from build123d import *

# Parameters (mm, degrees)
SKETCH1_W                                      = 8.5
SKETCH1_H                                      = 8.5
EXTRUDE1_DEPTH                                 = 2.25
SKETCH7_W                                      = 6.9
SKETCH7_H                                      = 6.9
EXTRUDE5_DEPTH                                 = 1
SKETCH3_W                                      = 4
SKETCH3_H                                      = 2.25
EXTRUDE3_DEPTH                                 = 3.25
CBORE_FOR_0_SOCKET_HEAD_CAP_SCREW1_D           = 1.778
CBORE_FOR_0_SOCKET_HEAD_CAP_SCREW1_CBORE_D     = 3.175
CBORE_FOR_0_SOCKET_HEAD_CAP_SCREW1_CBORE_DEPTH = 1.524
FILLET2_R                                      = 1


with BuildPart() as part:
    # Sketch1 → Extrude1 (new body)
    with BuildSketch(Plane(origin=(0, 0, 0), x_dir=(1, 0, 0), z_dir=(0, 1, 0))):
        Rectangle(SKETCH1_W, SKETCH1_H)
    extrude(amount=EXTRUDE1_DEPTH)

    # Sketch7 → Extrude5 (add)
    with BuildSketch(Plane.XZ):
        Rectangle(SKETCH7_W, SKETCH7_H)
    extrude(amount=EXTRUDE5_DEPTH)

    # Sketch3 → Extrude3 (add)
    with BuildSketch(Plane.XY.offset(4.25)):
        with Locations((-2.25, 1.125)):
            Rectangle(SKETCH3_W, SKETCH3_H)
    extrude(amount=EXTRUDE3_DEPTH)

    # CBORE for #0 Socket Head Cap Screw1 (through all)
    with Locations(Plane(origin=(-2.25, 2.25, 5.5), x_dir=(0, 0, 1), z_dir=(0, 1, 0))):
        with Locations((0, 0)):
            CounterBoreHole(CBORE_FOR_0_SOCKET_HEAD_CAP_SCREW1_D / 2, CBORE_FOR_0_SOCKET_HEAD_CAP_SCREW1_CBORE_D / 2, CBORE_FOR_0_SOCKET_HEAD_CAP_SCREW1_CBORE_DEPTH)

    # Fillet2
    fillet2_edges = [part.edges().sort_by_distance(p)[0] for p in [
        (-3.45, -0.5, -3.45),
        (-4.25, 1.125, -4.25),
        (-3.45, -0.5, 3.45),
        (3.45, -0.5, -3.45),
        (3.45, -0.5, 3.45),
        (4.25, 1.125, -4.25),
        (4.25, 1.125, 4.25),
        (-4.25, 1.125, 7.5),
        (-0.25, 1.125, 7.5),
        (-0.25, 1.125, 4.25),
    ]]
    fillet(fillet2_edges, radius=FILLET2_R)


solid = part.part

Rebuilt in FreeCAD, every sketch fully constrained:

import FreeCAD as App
import Part
import Sketcher

V = App.Vector
Q = App.Units.Quantity


def edges_at(feature, points):
    """Names of the edges that pass closest to the given points."""
    edges = feature.Shape.Edges
    near = lambda p: min(range(len(edges)), key=lambda i: edges[i].distToShape(Part.Vertex(*p))[0])
    return sorted({f"Edge{near(p) + 1}" for p in points})

doc = App.newDocument("Part")
body = doc.addObject("PartDesign::Body", "Body")

sketch1 = body.newObject("Sketcher::SketchObject", "Sketch")
sketch1.AttachmentSupport = (doc.getObject("XZ_Plane"), [""])
sketch1.MapMode = "FlatFace"
sketch1.addGeometry([
    Part.LineSegment(V(-4, -4, 0), V(-4, 4, 0)),
    Part.LineSegment(V(-4, 4, 0), V(4, 4, 0)),
    Part.LineSegment(V(4, 4, 0), V(4, -4, 0)),
    Part.LineSegment(V(4, -4, 0), V(-4, -4, 0)),
], False)
sketch1.addConstraint([
    Sketcher.Constraint("Coincident", 0, 2, 1, 1),
    Sketcher.Constraint("Coincident", 1, 2, 2, 1),
    Sketcher.Constraint("Coincident", 2, 2, 3, 1),
    Sketcher.Constraint("Coincident", 3, 2, 0, 1),
    Sketcher.Constraint("Vertical", 0),
    Sketcher.Constraint("Horizontal", 1),
    Sketcher.Constraint("Vertical", 2),
    Sketcher.Constraint("Horizontal", 3),
    Sketcher.Constraint("Symmetric", 0, 2, 2, 2, -1, 1),
    Sketcher.Constraint("Equal", 3, 0),
    Sketcher.Constraint("DistanceX", 1, 1, 1, 2, Q("8.5 mm")),
])
pad1 = body.newObject("PartDesign::Pad", "Pad")
pad1.Profile = sketch1
pad1.Length = 2.25
pad1.Reversed = True

sketch2 = body.newObject("Sketcher::SketchObject", "Sketch001")
sketch2.AttachmentSupport = (doc.getObject("XZ_Plane"), [""])
sketch2.MapMode = "FlatFace"
sketch2.addGeometry([
    Part.LineSegment(V(-3, 3, 0), V(-3, -3, 0)),
    Part.LineSegment(V(-3, -3, 0), V(3, -3, 0)),
    Part.LineSegment(V(3, -3, 0), V(3, 3, 0)),
    Part.LineSegment(V(3, 3, 0), V(-3, 3, 0)),
], False)
sketch2.addConstraint([
    Sketcher.Constraint("Coincident", 0, 2, 1, 1),
    Sketcher.Constraint("Coincident", 1, 2, 2, 1),
    Sketcher.Constraint("Coincident", 2, 2, 3, 1),
    Sketcher.Constraint("Coincident", 3, 2, 0, 1),
    Sketcher.Constraint("Vertical", 0),
    Sketcher.Constraint("Horizontal", 1),
    Sketcher.Constraint("Vertical", 2),
    Sketcher.Constraint("Horizontal", 3),
    Sketcher.Constraint("Symmetric", 0, 2, 2, 2, -1, 1),
    Sketcher.Constraint("Equal", 3, 0),
    Sketcher.Constraint("DistanceX", 1, 1, 1, 2, Q("6.9 mm")),
])
pad2 = body.newObject("PartDesign::Pad", "Pad001")
pad2.Profile = sketch2
pad2.Length = 1

sketch3 = body.newObject("Sketcher::SketchObject", "Sketch002")
sketch3.AttachmentSupport = (doc.getObject("XY_Plane"), [""])
sketch3.MapMode = "FlatFace"
sketch3.AttachmentOffset = App.Placement(V(0, 0, 4.25), App.Rotation())
sketch3.addGeometry([
    Part.LineSegment(V(-4.2, 2.2, 0), V(-4.2, 0, 0)),
    Part.LineSegment(V(-4.2, 0, 0), V(-0.2, 0, 0)),
    Part.LineSegment(V(-0.2, 0, 0), V(-0.2, 2.2, 0)),
    Part.LineSegment(V(-0.2, 2.2, 0), V(-4.2, 2.2, 0)),
], False)
sketch3.addConstraint([
    Sketcher.Constraint("Coincident", 0, 2, 1, 1),
    Sketcher.Constraint("Coincident", 1, 2, 2, 1),
    Sketcher.Constraint("Coincident", 2, 2, 3, 1),
    Sketcher.Constraint("Coincident", 3, 2, 0, 1),
    Sketcher.Constraint("Vertical", 0),
    Sketcher.Constraint("Horizontal", 1),
    Sketcher.Constraint("Vertical", 2),
    Sketcher.Constraint("Horizontal", 3),
    Sketcher.Constraint("PointOnObject", 0, 2, -1),
    Sketcher.Constraint("DistanceX", 1, 1, 1, 2, Q("4 mm")),
    Sketcher.Constraint("DistanceY", 0, 2, 0, 1, Q("2.25 mm")),
    Sketcher.Constraint("DistanceX", 0, 2, -1, 1, Q("4.25 mm")),
])
pad3 = body.newObject("PartDesign::Pad", "Pad002")
pad3.Profile = sketch3
pad3.Length = 3.25

sketch4 = body.newObject("Sketcher::SketchObject", "Sketch003")
sketch4.AttachmentSupport = (doc.getObject("XZ_Plane"), [""])
sketch4.MapMode = "FlatFace"
sketch4.AttachmentOffset = App.Placement(V(0, 0, -2.25), App.Rotation())
sketch4.addGeometry(Part.Circle(V(-2.2, 5.5, 0), V(0, 0, 1), 0.9), False)
sketch4.addConstraint([
    Sketcher.Constraint("Diameter", 0, Q("1.778 mm")),
    Sketcher.Constraint("DistanceY", -1, 1, 0, 3, Q("5.5 mm")),
    Sketcher.Constraint("DistanceX", 0, 3, -1, 1, Q("2.25 mm")),
])
doc.recompute()
hole = body.newObject("PartDesign::Hole", "Hole")
hole.Profile = sketch4
hole.ThreadType = "None"
hole.Diameter = 1.778
hole.DepthType = "ThroughAll"
hole.HoleCutType = "Counterbore"
hole.HoleCutDiameter = 3.175
hole.HoleCutDepth = 1.524
hole.Reversed = True
doc.recompute()

fillet = body.newObject("PartDesign::Fillet", "Fillet")
fillet.Base = (hole, edges_at(hole, [
    (-3.45, -0.5, -3.45),
    (-4.25, 1.125, -4.25),
    (-3.45, -0.5, 3.45),
    (3.45, -0.5, -3.45),
    (3.45, -0.5, 3.45),
    (4.25, 1.125, -4.25),
    (4.25, 1.125, 4.25),
    (-4.25, 1.125, 7.5),
    (-0.25, 1.125, 7.5),
    (-0.25, 1.125, 4.25),
]))
fillet.Radius = 1

doc.recompute()
